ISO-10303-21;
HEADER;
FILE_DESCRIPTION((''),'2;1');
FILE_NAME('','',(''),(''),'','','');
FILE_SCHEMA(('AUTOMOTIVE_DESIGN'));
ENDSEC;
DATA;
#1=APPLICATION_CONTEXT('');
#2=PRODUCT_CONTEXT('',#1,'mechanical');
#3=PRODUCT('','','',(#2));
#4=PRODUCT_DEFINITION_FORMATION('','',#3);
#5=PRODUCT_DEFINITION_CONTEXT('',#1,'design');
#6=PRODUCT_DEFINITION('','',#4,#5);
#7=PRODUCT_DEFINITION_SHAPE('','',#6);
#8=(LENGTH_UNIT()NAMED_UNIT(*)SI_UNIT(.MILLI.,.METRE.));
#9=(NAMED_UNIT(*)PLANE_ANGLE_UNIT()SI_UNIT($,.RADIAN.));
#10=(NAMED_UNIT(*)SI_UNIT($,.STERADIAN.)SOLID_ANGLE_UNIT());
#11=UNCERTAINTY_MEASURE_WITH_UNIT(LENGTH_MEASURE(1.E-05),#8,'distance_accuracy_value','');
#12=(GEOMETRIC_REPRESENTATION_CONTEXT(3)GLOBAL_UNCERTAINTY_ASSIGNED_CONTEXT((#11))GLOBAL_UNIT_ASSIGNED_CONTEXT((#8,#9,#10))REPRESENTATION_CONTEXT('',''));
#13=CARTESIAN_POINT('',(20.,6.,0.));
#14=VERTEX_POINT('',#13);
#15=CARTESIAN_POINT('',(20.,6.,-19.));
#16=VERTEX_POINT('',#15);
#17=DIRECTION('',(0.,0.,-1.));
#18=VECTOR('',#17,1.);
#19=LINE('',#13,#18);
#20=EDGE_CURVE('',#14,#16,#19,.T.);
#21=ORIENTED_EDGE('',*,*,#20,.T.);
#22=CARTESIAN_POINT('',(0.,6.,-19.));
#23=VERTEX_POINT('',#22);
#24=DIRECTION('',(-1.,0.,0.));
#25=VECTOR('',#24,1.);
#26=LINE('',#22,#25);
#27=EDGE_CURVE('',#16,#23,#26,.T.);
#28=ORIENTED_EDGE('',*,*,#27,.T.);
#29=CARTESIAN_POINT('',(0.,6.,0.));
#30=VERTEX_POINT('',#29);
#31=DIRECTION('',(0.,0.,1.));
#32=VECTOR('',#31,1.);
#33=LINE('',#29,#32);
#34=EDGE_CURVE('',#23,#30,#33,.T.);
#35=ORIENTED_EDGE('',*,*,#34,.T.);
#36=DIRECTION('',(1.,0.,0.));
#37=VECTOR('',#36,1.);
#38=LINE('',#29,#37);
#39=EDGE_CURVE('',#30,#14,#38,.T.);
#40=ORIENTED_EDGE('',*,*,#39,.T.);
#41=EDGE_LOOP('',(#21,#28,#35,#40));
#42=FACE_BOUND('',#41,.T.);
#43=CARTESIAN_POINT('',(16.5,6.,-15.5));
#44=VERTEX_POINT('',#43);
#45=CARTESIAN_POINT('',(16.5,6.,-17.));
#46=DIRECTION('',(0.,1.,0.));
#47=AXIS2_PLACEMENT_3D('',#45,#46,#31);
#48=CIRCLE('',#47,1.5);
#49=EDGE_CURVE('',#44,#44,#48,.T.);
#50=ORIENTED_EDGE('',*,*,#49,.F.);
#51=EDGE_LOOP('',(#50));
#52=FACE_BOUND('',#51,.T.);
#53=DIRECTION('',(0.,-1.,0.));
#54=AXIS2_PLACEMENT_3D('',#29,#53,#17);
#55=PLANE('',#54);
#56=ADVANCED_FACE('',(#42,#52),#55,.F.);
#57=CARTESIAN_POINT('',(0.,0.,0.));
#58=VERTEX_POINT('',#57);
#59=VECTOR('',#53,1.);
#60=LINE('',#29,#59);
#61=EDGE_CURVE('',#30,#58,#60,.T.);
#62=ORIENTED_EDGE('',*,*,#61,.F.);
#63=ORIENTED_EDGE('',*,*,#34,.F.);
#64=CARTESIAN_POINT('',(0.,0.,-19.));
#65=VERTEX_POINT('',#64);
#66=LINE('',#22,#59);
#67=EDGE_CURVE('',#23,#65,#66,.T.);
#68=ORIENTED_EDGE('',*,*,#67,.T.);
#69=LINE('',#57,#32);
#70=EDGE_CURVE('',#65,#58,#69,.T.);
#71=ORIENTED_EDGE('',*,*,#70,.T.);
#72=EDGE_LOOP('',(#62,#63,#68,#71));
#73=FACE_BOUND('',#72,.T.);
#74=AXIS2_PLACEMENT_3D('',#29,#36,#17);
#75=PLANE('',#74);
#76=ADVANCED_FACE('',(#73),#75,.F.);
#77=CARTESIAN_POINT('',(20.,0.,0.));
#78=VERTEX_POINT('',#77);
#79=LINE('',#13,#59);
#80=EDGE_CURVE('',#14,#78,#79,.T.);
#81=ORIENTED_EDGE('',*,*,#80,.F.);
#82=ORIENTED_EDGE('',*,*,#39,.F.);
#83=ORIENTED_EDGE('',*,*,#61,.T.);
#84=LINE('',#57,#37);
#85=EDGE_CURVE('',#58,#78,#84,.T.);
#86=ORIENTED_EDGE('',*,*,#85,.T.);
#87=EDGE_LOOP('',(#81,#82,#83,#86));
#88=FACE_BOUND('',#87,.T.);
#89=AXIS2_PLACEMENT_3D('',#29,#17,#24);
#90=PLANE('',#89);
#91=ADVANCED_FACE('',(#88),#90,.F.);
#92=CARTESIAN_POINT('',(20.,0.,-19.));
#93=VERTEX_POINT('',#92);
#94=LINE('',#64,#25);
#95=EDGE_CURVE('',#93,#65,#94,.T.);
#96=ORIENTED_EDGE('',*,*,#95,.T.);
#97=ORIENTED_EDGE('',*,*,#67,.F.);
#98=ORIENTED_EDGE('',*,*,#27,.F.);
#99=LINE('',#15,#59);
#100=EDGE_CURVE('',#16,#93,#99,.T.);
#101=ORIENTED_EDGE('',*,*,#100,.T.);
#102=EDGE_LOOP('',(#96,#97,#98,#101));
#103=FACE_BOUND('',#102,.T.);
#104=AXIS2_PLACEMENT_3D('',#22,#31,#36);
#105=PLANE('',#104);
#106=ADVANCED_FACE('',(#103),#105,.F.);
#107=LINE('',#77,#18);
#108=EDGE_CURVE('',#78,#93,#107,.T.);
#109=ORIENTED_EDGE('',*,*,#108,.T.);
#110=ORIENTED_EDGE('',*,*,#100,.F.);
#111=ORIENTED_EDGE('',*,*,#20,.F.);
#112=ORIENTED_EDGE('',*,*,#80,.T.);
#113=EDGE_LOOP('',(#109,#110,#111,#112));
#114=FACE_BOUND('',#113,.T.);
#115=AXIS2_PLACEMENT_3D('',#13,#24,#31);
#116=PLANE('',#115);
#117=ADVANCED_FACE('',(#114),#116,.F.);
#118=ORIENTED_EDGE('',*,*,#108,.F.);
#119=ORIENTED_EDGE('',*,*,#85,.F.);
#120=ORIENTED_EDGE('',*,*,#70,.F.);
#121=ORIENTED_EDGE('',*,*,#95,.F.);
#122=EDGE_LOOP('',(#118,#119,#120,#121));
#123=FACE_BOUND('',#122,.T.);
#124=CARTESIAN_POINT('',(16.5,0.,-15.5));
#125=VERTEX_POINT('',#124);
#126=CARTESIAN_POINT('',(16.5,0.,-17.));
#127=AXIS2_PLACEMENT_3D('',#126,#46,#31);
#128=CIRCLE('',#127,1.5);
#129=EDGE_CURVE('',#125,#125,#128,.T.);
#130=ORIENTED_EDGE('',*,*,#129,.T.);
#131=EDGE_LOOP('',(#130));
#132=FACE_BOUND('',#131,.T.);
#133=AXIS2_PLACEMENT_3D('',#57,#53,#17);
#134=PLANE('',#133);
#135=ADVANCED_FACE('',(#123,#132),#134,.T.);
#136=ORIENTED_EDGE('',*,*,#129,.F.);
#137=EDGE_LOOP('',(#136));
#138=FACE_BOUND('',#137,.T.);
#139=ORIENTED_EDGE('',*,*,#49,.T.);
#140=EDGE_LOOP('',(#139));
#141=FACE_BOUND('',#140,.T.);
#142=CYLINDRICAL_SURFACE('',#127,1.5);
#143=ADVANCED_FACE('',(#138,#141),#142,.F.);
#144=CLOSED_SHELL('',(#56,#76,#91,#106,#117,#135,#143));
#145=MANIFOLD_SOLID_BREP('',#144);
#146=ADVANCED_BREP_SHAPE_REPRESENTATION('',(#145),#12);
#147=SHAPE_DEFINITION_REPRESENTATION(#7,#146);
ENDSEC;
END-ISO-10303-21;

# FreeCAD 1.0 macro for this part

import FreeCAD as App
import Part
import Sketcher


def add_polygon(sketch, points):
    """Adds a closed chain of lines whose ends are joined by coincident constraints."""
    first, n = sketch.GeometryCount, len(points)
    for a, b in zip(points, points[1:] + points[:1]):
        sketch.addGeometry(Part.LineSegment(App.Vector(*a, 0), App.Vector(*b, 0)), False)
    for i in range(n):
        sketch.addConstraint(Sketcher.Constraint("Coincident", first + i, 2, first + (i + 1) % n, 1))

doc = App.newDocument("Part")
body = doc.addObject("PartDesign::Body", "Body")

# Sketch on XZ plane
sketch1 = body.newObject("Sketcher::SketchObject", "Sketch")
sketch1.AttachmentSupport = (doc.getObject("XZ_Plane"), [""])
sketch1.MapMode = "FlatFace"
add_polygon(sketch1, [(0, -19), (0, 0), (20, 0), (20, -19)])  # lines 0-3
sketch1.addConstraint(Sketcher.Constraint("Vertical", 0))
sketch1.addConstraint(Sketcher.Constraint("Horizontal", 1))
sketch1.addConstraint(Sketcher.Constraint("Vertical", 2))
sketch1.addConstraint(Sketcher.Constraint("Horizontal", 3))
sketch1.addConstraint(Sketcher.Constraint("Coincident", 0, 2, -1, 1))
sketch1.addConstraint(Sketcher.Constraint("DistanceX", 1, 1, 1, 2, 20.0))
sketch1.addConstraint(Sketcher.Constraint("DistanceY", 0, 1, 0, 2, 19.0))
pad1 = body.newObject("PartDesign::Pad", "Pad")
pad1.Profile = sketch1
pad1.Length = 6
pad1.Reversed = True

# Sketch on XZ plane
sketch2 = body.newObject("Sketcher::SketchObject", "Sketch001")
sketch2.AttachmentSupport = (doc.getObject("XZ_Plane"), [""])
sketch2.MapMode = "FlatFace"
sketch2.AttachmentOffset = App.Placement(App.Vector(0, 0, -6), App.Rotation())
sketch2.addGeometry(Part.Circle(App.Vector(16.5, -17, 0), App.Vector(0, 0, 1), 1.5), False)
sketch2.addConstraint(Sketcher.Constraint("Diameter", 0, 3.0))
sketch2.addConstraint(Sketcher.Constraint("DistanceY", 0, 3, -1, 1, 17.0))
sketch2.addConstraint(Sketcher.Constraint("DistanceX", -1, 1, 0, 3, 16.5))
pocket1 = body.newObject("PartDesign::Pocket", "Pocket")
pocket1.Profile = sketch2
pocket1.Length = 6
pocket1.Reversed = True

doc.recompute()
